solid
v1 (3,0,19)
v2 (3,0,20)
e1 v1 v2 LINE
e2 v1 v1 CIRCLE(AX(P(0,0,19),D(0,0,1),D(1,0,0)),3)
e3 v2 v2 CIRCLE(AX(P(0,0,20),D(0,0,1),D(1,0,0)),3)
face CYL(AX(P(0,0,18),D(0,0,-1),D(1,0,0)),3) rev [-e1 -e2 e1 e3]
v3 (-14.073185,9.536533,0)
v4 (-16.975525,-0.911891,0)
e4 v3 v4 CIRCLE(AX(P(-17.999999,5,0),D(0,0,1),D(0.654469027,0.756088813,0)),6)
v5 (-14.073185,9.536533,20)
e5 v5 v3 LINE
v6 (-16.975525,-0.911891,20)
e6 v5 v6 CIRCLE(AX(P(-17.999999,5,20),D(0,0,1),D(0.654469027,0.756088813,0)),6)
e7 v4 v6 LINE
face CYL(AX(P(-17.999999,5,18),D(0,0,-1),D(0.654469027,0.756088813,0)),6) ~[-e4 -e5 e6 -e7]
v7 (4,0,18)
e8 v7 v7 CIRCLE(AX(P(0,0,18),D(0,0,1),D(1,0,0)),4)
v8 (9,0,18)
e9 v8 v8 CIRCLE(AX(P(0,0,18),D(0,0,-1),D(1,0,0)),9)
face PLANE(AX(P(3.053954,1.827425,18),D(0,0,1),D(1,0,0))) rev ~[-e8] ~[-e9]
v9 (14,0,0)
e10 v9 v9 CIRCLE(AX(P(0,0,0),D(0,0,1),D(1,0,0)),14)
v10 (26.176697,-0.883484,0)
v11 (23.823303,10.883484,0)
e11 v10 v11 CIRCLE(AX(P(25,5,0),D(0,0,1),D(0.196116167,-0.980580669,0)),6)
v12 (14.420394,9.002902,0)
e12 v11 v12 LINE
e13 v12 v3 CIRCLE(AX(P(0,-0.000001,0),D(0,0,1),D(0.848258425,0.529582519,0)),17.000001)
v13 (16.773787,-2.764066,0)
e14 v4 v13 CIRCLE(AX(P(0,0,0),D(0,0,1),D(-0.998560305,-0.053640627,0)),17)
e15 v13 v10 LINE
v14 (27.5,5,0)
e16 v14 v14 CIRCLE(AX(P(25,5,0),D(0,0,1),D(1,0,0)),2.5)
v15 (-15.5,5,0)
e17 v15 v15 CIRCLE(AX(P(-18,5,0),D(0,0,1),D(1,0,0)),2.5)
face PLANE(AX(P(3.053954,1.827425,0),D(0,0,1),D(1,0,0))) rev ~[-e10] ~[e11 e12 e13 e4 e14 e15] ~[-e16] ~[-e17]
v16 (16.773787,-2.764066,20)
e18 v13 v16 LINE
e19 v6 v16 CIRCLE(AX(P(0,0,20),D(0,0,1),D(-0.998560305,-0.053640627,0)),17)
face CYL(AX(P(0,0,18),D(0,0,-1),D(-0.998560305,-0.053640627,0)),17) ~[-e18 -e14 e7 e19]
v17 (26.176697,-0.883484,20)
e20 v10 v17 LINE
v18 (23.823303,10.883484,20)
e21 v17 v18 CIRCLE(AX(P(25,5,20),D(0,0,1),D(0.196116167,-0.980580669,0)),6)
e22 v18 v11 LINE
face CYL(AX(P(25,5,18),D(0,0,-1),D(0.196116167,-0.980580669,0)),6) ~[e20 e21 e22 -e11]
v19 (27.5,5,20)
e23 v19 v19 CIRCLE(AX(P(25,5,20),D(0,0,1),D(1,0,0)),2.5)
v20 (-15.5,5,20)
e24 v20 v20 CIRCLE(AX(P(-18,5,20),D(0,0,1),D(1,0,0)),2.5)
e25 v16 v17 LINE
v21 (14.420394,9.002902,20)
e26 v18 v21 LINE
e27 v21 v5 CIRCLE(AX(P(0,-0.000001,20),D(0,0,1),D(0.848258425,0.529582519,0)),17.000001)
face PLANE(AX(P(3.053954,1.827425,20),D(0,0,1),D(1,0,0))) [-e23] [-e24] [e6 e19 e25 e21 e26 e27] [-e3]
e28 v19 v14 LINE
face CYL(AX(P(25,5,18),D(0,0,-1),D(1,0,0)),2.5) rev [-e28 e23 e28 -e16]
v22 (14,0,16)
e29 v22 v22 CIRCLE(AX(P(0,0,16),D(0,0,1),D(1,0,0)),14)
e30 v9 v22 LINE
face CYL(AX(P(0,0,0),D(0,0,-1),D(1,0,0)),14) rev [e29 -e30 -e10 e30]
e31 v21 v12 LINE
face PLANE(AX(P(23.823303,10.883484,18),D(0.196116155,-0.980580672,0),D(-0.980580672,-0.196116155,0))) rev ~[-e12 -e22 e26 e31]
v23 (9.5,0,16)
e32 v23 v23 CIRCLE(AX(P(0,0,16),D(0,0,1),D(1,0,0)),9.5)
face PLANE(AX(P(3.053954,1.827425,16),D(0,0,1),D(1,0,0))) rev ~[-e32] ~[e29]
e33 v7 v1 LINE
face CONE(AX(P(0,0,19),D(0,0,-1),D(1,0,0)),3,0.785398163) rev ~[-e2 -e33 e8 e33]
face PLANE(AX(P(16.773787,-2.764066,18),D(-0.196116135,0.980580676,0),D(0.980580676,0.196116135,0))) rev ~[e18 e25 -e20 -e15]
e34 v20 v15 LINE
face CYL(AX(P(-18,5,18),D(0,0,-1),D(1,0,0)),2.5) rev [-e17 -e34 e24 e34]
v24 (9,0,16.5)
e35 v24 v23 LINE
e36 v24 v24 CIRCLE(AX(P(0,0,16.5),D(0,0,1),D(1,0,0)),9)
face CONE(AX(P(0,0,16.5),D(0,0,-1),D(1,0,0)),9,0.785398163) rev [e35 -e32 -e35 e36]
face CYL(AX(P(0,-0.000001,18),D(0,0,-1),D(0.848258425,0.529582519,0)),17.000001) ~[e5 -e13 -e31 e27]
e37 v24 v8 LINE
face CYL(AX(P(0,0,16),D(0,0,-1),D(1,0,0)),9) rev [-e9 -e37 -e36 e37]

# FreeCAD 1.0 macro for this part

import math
import FreeCAD as App
import Part
import Sketcher
from FreeCAD import Vector
Q = App.Units.Quantity


def edges_at(feature, points):
    """Names of the edges that pass closest to the given points."""
    edges = feature.Shape.Edges
    near = lambda p: min(range(len(edges)), key=lambda i: edges[i].distToShape(Part.Vertex(*p))[0])
    return sorted({f"Edge{near(p) + 1}" for p in points})

doc = App.newDocument("Part")
body = doc.addObject("PartDesign::Body", "Body")

# Sketch on XY plane
sketch1 = body.newObject("Sketcher::SketchObject", "Sketch")
sketch1.AttachmentSupport = (doc.getObject("XY_Plane"), [""])
sketch1.MapMode = "FlatFace"
sketch1.addGeometry(Part.ArcOfCircle(Part.Circle(Vector(-18, 5, 0), Vector(0, 0, 1), 6), math.radians(49), math.radians(280)), False)
sketch1.addGeometry(Part.ArcOfCircle(Part.Circle(Vector(0, 0, 0), Vector(0, 0, 1), 17), math.radians(-177), math.radians(-9)), False)
sketch1.addGeometry(Part.LineSegment(Vector(16.8, -2.8, 0), Vector(26.2, -0.9, 0)), False)
sketch1.addGeometry(Part.ArcOfCircle(Part.Circle(Vector(25, 5, 0), Vector(0, 0, 1), 6), math.radians(-79), math.radians(101)), False)
sketch1.addGeometry(Part.LineSegment(Vector(23.8, 10.9, 0), Vector(14.4, 9, 0)), False)
sketch1.addGeometry(Part.ArcOfCircle(Part.Circle(Vector(0, 0, 0), Vector(0, 0, 1), 17), math.radians(32), math.radians(146)), False)
sketch1.addGeometry(Part.Circle(Vector(-18, 5, 0), Vector(0, 0, 1), 2.5), False)
sketch1.addGeometry(Part.Circle(Vector(0, 0, 0), Vector(0, 0, 1), 14), False)
sketch1.addGeometry(Part.Circle(Vector(25, 5, 0), Vector(0, 0, 1), 2.5), False)
sketch1.addConstraint(Sketcher.Constraint("Coincident", 0, 2, 1, 1))
sketch1.addConstraint(Sketcher.Constraint("Coincident", 1, 2, 2, 1))
sketch1.addConstraint(Sketcher.Constraint("Tangent", 2, 2, 3, 1))
sketch1.addConstraint(Sketcher.Constraint("Tangent", 3, 2, 4, 1))
sketch1.addConstraint(Sketcher.Constraint("Coincident", 4, 2, 5, 1))
sketch1.addConstraint(Sketcher.Constraint("Coincident", 5, 2, 0, 1))
sketch1.addConstraint(Sketcher.Constraint("Coincident", 1, 3, -1, 1))
sketch1.addConstraint(Sketcher.Constraint("Coincident", 5, 3, -1, 1))
sketch1.addConstraint(Sketcher.Constraint("Coincident", 7, 3, -1, 1))
sketch1.addConstraint(Sketcher.Constraint("Coincident", 6, 3, 0, 3))
sketch1.addConstraint(Sketcher.Constraint("Coincident", 8, 3, 3, 3))
sketch1.addConstraint(Sketcher.Constraint("Equal", 0, 3))
sketch1.addConstraint(Sketcher.Constraint("Equal", 1, 5))
sketch1.addConstraint(Sketcher.Constraint("Equal", 6, 8))
sketch1.addConstraint(Sketcher.Constraint("Parallel", 2, 4))
sketch1.addConstraint(Sketcher.Constraint("Horizontal", 0, 3, 3, 3))
sketch1.addConstraint(Sketcher.Constraint("Equal", 2, 4))
sketch1.addConstraint(Sketcher.Constraint("Diameter", 6, Q("5 mm")))
sketch1.addConstraint(Sketcher.Constraint("Diameter", 7, Q("28 mm")))
sketch1.addConstraint(Sketcher.Constraint("Radius", 0, Q("6 mm")))
sketch1.addConstraint(Sketcher.Constraint("Radius", 1, Q("17 mm")))
sketch1.addConstraint(Sketcher.Constraint("DistanceX", 0, 3, -1, 1, Q("17.999999 mm")))
sketch1.addConstraint(Sketcher.Constraint("DistanceY", -1, 1, 0, 3, Q("5 mm")))
sketch1.addConstraint(Sketcher.Constraint("DistanceX", -1, 1, 3, 3, Q("25 mm")))
pad1 = body.newObject("PartDesign::Pad", "Pad")
pad1.Profile = sketch1
pad1.Length = 16

# Sketch on XY plane
sketch2 = body.newObject("Sketcher::SketchObject", "Sketch001")
sketch2.AttachmentSupport = (doc.getObject("XY_Plane"), [""])
sketch2.MapMode = "FlatFace"
sketch2.AttachmentOffset = App.Placement(Vector(0, 0, 16), App.Rotation())
sketch2.addGeometry(Part.ArcOfCircle(Part.Circle(Vector(-18, 5, 0), Vector(0, 0, 1), 6), math.radians(49), math.radians(280)), False)
sketch2.addGeometry(Part.ArcOfCircle(Part.Circle(Vector(0, 0, 0), Vector(0, 0, 1), 17), math.radians(-177), math.radians(-9)), False)
sketch2.addGeometry(Part.LineSegment(Vector(16.8, -2.8, 0), Vector(26.2, -0.9, 0)), False)
sketch2.addGeometry(Part.ArcOfCircle(Part.Circle(Vector(25, 5, 0), Vector(0, 0, 1), 6), math.radians(-79), math.radians(101)), False)
sketch2.addGeometry(Part.LineSegment(Vector(23.8, 10.9, 0), Vector(14.4, 9, 0)), False)
sketch2.addGeometry(Part.ArcOfCircle(Part.Circle(Vector(0, 0, 0), Vector(0, 0, 1), 17), math.radians(32), math.radians(146)), False)
sketch2.addGeometry(Part.Circle(Vector(0, 0, 0), Vector(0, 0, 1), 9), False)
sketch2.addGeometry(Part.Circle(Vector(-18, 5, 0), Vector(0, 0, 1), 2.5), False)
sketch2.addGeometry(Part.Circle(Vector(25, 5, 0), Vector(0, 0, 1), 2.5), False)
sketch2.addConstraint(Sketcher.Constraint("Coincident", 0, 2, 1, 1))
sketch2.addConstraint(Sketcher.Constraint("Coincident", 1, 2, 2, 1))
sketch2.addConstraint(Sketcher.Constraint("Tangent", 2, 2, 3, 1))
sketch2.addConstraint(Sketcher.Constraint("Tangent", 3, 2, 4, 1))
sketch2.addConstraint(Sketcher.Constraint("Coincident", 4, 2, 5, 1))
sketch2.addConstraint(Sketcher.Constraint("Coincident", 5, 2, 0, 1))
sketch2.addConstraint(Sketcher.Constraint("Coincident", 1, 3, -1, 1))
sketch2.addConstraint(Sketcher.Constraint("Coincident", 5, 3, -1, 1))
sketch2.addConstraint(Sketcher.Constraint("Coincident", 6, 3, -1, 1))
sketch2.addConstraint(Sketcher.Constraint("Coincident", 7, 3, 0, 3))
sketch2.addConstraint(Sketcher.Constraint("Coincident", 8, 3, 3, 3))
sketch2.addConstraint(Sketcher.Constraint("Equal", 0, 3))
sketch2.addConstraint(Sketcher.Constraint("Equal", 1, 5))
sketch2.addConstraint(Sketcher.Constraint("Equal", 7, 8))
sketch2.addConstraint(Sketcher.Constraint("Parallel", 2, 4))
sketch2.addConstraint(Sketcher.Constraint("Horizontal", 0, 3, 3, 3))
sketch2.addConstraint(Sketcher.Constraint("Equal", 2, 4))
sketch2.addConstraint(Sketcher.Constraint("Diameter", 6, Q("18 mm")))
sketch2.addConstraint(Sketcher.Constraint("Diameter", 7, Q("5 mm")))
sketch2.addConstraint(Sketcher.Constraint("Radius", 0, Q("6 mm")))
sketch2.addConstraint(Sketcher.Constraint("Radius", 1, Q("17 mm")))
sketch2.addConstraint(Sketcher.Constraint("DistanceX", 0, 3, -1, 1, Q("17.999999 mm")))
sketch2.addConstraint(Sketcher.Constraint("DistanceY", -1, 1, 0, 3, Q("5 mm")))
sketch2.addConstraint(Sketcher.Constraint("DistanceX", -1, 1, 3, 3, Q("25 mm")))
pad2 = body.newObject("PartDesign::Pad", "Pad001")
pad2.Profile = sketch2
pad2.Length = 2.5

# Sketch on XY plane
sketch3 = body.newObject("Sketcher::SketchObject", "Sketch002")
sketch3.AttachmentSupport = (doc.getObject("XY_Plane"), [""])
sketch3.MapMode = "FlatFace"
sketch3.AttachmentOffset = App.Placement(Vector(0, 0, 18), App.Rotation())
sketch3.addGeometry(Part.ArcOfCircle(Part.Circle(Vector(-18, 5, 0), Vector(0, 0, 1), 6), math.radians(49), math.radians(280)), False)
sketch3.addGeometry(Part.ArcOfCircle(Part.Circle(Vector(0, 0, 0), Vector(0, 0, 1), 17), math.radians(-177), math.radians(-9)), False)
sketch3.addGeometry(Part.LineSegment(Vector(16.8, -2.8, 0), Vector(26.2, -0.9, 0)), False)
sketch3.addGeometry(Part.ArcOfCircle(Part.Circle(Vector(25, 5, 0), Vector(0, 0, 1), 6), math.radians(-79), math.radians(101)), False)
sketch3.addGeometry(Part.LineSegment(Vector(23.8, 10.9, 0), Vector(14.4, 9, 0)), False)
sketch3.addGeometry(Part.ArcOfCircle(Part.Circle(Vector(0, 0, 0), Vector(0, 0, 1), 17), math.radians(32), math.radians(146)), False)
sketch3.addGeometry(Part.Circle(Vector(0, 0, 0), Vector(0, 0, 1), 3), False)
sketch3.addGeometry(Part.Circle(Vector(-18, 5, 0), Vector(0, 0, 1), 2.5), False)
sketch3.addGeometry(Part.Circle(Vector(25, 5, 0), Vector(0, 0, 1), 2.5), False)
sketch3.addConstraint(Sketcher.Constraint("Coincident", 0, 2, 1, 1))
sketch3.addConstraint(Sketcher.Constraint("Coincident", 1, 2, 2, 1))
sketch3.addConstraint(Sketcher.Constraint("Tangent", 2, 2, 3, 1))
sketch3.addConstraint(Sketcher.Constraint("Tangent", 3, 2, 4, 1))
sketch3.addConstraint(Sketcher.Constraint("Coincident", 4, 2, 5, 1))
sketch3.addConstraint(Sketcher.Constraint("Coincident", 5, 2, 0, 1))
sketch3.addConstraint(Sketcher.Constraint("Coincident", 1, 3, -1, 1))
sketch3.addConstraint(Sketcher.Constraint("Coincident", 5, 3, -1, 1))
sketch3.addConstraint(Sketcher.Constraint("Coincident", 6, 3, -1, 1))
sketch3.addConstraint(Sketcher.Constraint("Coincident", 7, 3, 0, 3))
sketch3.addConstraint(Sketcher.Constraint("Coincident", 8, 3, 3, 3))
sketch3.addConstraint(Sketcher.Constraint("Equal", 0, 3))
sketch3.addConstraint(Sketcher.Constraint("Equal", 1, 5))
sketch3.addConstraint(Sketcher.Constraint("Equal", 7, 8))
sketch3.addConstraint(Sketcher.Constraint("Parallel", 2, 4))
sketch3.addConstraint(Sketcher.Constraint("Horizontal", 0, 3, 3, 3))
sketch3.addConstraint(Sketcher.Constraint("Equal", 2, 4))
sketch3.addConstraint(Sketcher.Constraint("Diameter", 6, Q("6 mm")))
sketch3.addConstraint(Sketcher.Constraint("Diameter", 7, Q("5 mm")))
sketch3.addConstraint(Sketcher.Constraint("Radius", 0, Q("6 mm")))
sketch3.addConstraint(Sketcher.Constraint("Radius", 1, Q("17 mm")))
sketch3.addConstraint(Sketcher.Constraint("DistanceX", 0, 3, -1, 1, Q("17.999999 mm")))
sketch3.addConstraint(Sketcher.Constraint("DistanceY", -1, 1, 0, 3, Q("5 mm")))
sketch3.addConstraint(Sketcher.Constraint("DistanceX", -1, 1, 3, 3, Q("25 mm")))
pad3 = body.newObject("PartDesign::Pad", "Pad002")
pad3.Profile = sketch3
pad3.Length = 2
doc.recompute()

chamfer = body.newObject("PartDesign::Chamfer", "Chamfer")
chamfer.Base = (pad3, edges_at(pad3, [(-9, 0, 16)]))
chamfer.Size = 0.5
doc.recompute()

chamfer2 = body.newObject("PartDesign::Chamfer", "Chamfer001")
chamfer2.Base = (chamfer, edges_at(chamfer, [(-3, 0, 18)]))
chamfer2.Size = 1

doc.recompute()
